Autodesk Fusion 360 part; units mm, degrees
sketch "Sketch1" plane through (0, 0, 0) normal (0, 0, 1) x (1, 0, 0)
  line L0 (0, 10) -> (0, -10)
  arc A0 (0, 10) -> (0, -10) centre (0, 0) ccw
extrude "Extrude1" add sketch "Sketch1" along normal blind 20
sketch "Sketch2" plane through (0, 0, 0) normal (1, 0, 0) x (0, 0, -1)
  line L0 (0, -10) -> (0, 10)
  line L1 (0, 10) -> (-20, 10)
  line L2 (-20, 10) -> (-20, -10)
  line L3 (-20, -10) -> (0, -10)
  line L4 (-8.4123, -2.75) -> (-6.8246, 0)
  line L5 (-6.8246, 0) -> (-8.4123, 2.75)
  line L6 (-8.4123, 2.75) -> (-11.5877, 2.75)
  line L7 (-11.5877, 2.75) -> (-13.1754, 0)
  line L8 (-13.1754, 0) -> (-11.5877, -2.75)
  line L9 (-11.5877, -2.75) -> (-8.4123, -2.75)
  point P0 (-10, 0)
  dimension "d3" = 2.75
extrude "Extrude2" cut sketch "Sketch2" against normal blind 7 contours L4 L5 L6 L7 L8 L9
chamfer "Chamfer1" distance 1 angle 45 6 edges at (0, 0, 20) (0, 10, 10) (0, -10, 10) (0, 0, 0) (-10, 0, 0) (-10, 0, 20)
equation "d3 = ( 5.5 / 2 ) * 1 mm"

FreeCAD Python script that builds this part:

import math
import FreeCAD as App
import Part
import Sketcher
Q = App.Units.Quantity


def edges_at(feature, points):
    """Names of the edges that pass closest to the given points."""
    edges = feature.Shape.Edges
    near = lambda p: min(range(len(edges)), key=lambda i: edges[i].distToShape(Part.Vertex(*p))[0])
    return sorted({f"Edge{near(p) + 1}" for p in points})


def add_polygon(sketch, points):
    """Adds a closed chain of lines whose ends are joined by coincident constraints."""
    first, n = sketch.GeometryCount, len(points)
    for a, b in zip(points, points[1:] + points[:1]):
        sketch.addGeometry(Part.LineSegment(App.Vector(*a, 0), App.Vector(*b, 0)), False)
    for i in range(n):
        sketch.addConstraint(Sketcher.Constraint("Coincident", first + i, 2, first + (i + 1) % n, 1))

doc = App.newDocument("Part")
params = doc.addObject("Spreadsheet::Sheet", "Params")
for row, (alias, value) in enumerate([
    ("sketch1_radius", "10 mm"),
    ("pad1_length", "20 mm"),
    ("pocket1_length", "7 mm"),
    ("chamfer_size", "1 mm"),
], start=1):
    params.set(f"A{row}", alias)
    params.set(f"B{row}", "=" + value)
    params.setAlias(f"B{row}", alias)

body = doc.addObject("PartDesign::Body", "Body")

# Sketch on XY plane
sketch1 = doc.addObject("Sketcher::SketchObject", "Sketch")
body.addObject(sketch1)
sketch1.AttachmentSupport = (doc.XY_Plane, [""])
sketch1.MapMode = "FlatFace"
sketch1.addGeometry([
    Part.LineSegment(App.Vector(0, -10, 0), App.Vector(0, 10, 0)),
    Part.ArcOfCircle(Part.Circle(App.Vector(0, 0, 0), App.Vector(0, 0, 1), 10), math.radians(90), math.radians(270)),
], False)
sketch1.addConstraint([
    Sketcher.Constraint("Coincident", 0, 1, 1, 2),
    Sketcher.Constraint("Coincident", 1, 1, 0, 2),
    Sketcher.Constraint("Vertical", 0),
    Sketcher.Constraint("Coincident", 1, 3, -1, 1),
    Sketcher.Constraint("PointOnObject", 0, 1, -2),
    Sketcher.Constraint("Radius", 1, Q("10 mm")),
])
sketch1.setExpression("Constraints[5]", "Params.sketch1_radius")
pad1 = doc.addObject("PartDesign::Pad", "Pad")
body.addObject(pad1)
pad1.Profile = sketch1
pad1.setExpression("Length", "Params.pad1_length")

# Sketch on YZ plane
sketch2 = doc.addObject("Sketcher::SketchObject", "Sketch001")
body.addObject(sketch2)
sketch2.AttachmentSupport = (doc.YZ_Plane, [""])
sketch2.MapMode = "FlatFace"
add_polygon(sketch2, [(-2.8, 11.6), (-2.8, 8.4), (0, 6.8), (2.8, 8.4), (2.8, 11.6), (0, 13.2)])  # lines 0-5
sketch2.addConstraint([
    Sketcher.Constraint("Vertical", 0),
    Sketcher.Constraint("Vertical", 3),
    Sketcher.Constraint("Symmetric", 0, 2, 2, 2, -2),
    Sketcher.Constraint("PointOnObject", 1, 2, -2),
    Sketcher.Constraint("PointOnObject", 4, 2, -2),
    Sketcher.Constraint("Parallel", 1, 4),
    Sketcher.Constraint("Parallel", 2, 5),
    Sketcher.Constraint("DistanceX", 0, 2, -1, 1, Q("2.75 mm")),
    Sketcher.Constraint("Angle", 1, Q("-29.9998 deg")),
    Sketcher.Constraint("DistanceY", 0, 2, 0, 1, Q("3.1754 mm")),
    Sketcher.Constraint("DistanceY", -1, 1, 0, 2, Q("8.4123 mm")),
])
pocket1 = doc.addObject("PartDesign::Pocket", "Pocket")
body.addObject(pocket1)
pocket1.Profile = sketch2
pocket1.setExpression("Length", "Params.pocket1_length")
doc.recompute()

chamfer = doc.addObject("PartDesign::Chamfer", "Chamfer")
body.addObject(chamfer)
chamfer.Base = (pocket1, edges_at(pocket1, [
    (0, 0, 20),
    (0, 10, 10),
    (0, -10, 10),
    (0, 0, 0),
    (-10, 0, 0),
    (-10, 0, 20),
]))
chamfer.setExpression("Size", "Params.chamfer_size")

doc.recompute()
